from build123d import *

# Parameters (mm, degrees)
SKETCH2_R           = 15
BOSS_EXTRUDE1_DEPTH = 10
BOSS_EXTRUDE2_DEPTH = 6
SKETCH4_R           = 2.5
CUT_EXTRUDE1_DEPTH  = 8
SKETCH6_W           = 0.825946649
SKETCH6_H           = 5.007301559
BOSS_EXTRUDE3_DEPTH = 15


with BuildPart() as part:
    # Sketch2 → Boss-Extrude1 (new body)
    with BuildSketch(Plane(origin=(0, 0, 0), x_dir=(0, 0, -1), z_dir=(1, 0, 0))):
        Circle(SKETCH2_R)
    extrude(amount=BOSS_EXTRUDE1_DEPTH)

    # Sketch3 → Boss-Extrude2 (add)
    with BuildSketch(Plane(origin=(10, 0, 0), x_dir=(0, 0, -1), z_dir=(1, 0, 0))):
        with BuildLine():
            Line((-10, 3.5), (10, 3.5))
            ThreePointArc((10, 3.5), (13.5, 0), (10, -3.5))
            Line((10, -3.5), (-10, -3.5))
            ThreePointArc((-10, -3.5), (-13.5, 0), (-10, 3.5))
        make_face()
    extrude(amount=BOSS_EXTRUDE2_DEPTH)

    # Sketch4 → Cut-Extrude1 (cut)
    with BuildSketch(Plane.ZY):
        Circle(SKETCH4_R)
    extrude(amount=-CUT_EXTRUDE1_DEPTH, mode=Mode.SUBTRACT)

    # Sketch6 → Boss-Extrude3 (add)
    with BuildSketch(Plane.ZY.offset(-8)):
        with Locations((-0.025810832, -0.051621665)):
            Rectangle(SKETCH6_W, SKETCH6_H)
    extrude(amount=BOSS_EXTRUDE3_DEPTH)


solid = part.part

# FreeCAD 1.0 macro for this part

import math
import FreeCAD as App
import Part
import Sketcher
from FreeCAD import Vector


def add_polygon(sketch, points):
    """Adds a closed chain of lines whose ends are joined by coincident constraints."""
    first, n = sketch.GeometryCount, len(points)
    for a, b in zip(points, points[1:] + points[:1]):
        sketch.addGeometry(Part.LineSegment(App.Vector(*a, 0), App.Vector(*b, 0)), False)
    for i in range(n):
        sketch.addConstraint(Sketcher.Constraint("Coincident", first + i, 2, first + (i + 1) % n, 1))

doc = App.newDocument("Part")
body = doc.addObject("PartDesign::Body", "Body")

# Sketch on YZ plane
sketch1 = body.newObject("Sketcher::SketchObject", "Sketch")
sketch1.AttachmentSupport = (doc.getObject("YZ_Plane"), [""])
sketch1.MapMode = "FlatFace"
sketch1.addGeometry(Part.Circle(Vector(0, 0, 0), Vector(0, 0, 1), 15), False)
sketch1.addConstraint([
    Sketcher.Constraint("Coincident", 0, 3, -1, 1),
    Sketcher.Constraint("Diameter", 0, 30.0),
])
pad1 = body.newObject("PartDesign::Pad", "Pad")
pad1.Profile = sketch1
pad1.Length = 10

# Sketch on YZ plane
sketch2 = body.newObject("Sketcher::SketchObject", "Sketch001")
sketch2.AttachmentSupport = (doc.getObject("YZ_Plane"), [""])
sketch2.MapMode = "FlatFace"
sketch2.AttachmentOffset = App.Placement(Vector(0, 0, 10), App.Rotation())
sketch2.addGeometry([
    Part.LineSegment(Vector(3.5, -10, 0), Vector(3.5, 10, 0)),
    Part.ArcOfCircle(Part.Circle(Vector(0, 10, 0), Vector(0, 0, 1), 3.5), math.radians(0), math.radians(180)),
    Part.LineSegment(Vector(-3.5, 10, 0), Vector(-3.5, -10, 0)),
    Part.ArcOfCircle(Part.Circle(Vector(0, -10, 0), Vector(0, 0, 1), 3.5), math.radians(180), math.radians(360)),
], False)
sketch2.addConstraint([
    Sketcher.Constraint("Tangent", 0, 2, 1, 1),
    Sketcher.Constraint("Tangent", 1, 2, 2, 1),
    Sketcher.Constraint("Tangent", 2, 2, 3, 1),
    Sketcher.Constraint("Tangent", 3, 2, 0, 1),
    Sketcher.Constraint("Vertical", 0),
    Sketcher.Constraint("Vertical", 2),
    Sketcher.Constraint("Symmetric", 1, 3, 3, 3, -1, 1),
    Sketcher.Constraint("Radius", 1, 3.5),
    Sketcher.Constraint("DistanceY", 0, 1, 0, 2, 20.0),
])
pad2 = body.newObject("PartDesign::Pad", "Pad001")
pad2.Profile = sketch2
pad2.Length = 6

# Sketch on YZ plane
sketch3 = body.newObject("Sketcher::SketchObject", "Sketch002")
sketch3.AttachmentSupport = (doc.getObject("YZ_Plane"), [""])
sketch3.MapMode = "FlatFace"
sketch3.addGeometry(Part.Circle(Vector(0, 0, 0), Vector(0, 0, 1), 2.5), False)
sketch3.addConstraint([
    Sketcher.Constraint("Coincident", 0, 3, -1, 1),
    Sketcher.Constraint("Diameter", 0, 5.0),
])
pocket1 = body.newObject("PartDesign::Pocket", "Pocket")
pocket1.Profile = sketch3
pocket1.Length = 8
pocket1.Reversed = True

# Sketch on YZ plane
sketch4 = body.newObject("Sketcher::SketchObject", "Sketch003")
sketch4.AttachmentSupport = (doc.getObject("YZ_Plane"), [""])
sketch4.MapMode = "FlatFace"
sketch4.AttachmentOffset = App.Placement(Vector(0, 0, 8), App.Rotation())
add_polygon(sketch4, [(2.5, -0.4), (-2.6, -0.4), (-2.6, 0.4), (2.5, 0.4)])  # lines 0-3
sketch4.addConstraint([
    Sketcher.Constraint("Horizontal", 0),
    Sketcher.Constraint("Vertical", 1),
    Sketcher.Constraint("Horizontal", 2),
    Sketcher.Constraint("Vertical", 3),
    Sketcher.Constraint("DistanceX", 0, 2, 0, 1, 5.007302),
    Sketcher.Constraint("DistanceY", 1, 1, 1, 2, 0.825947),
    Sketcher.Constraint("DistanceX", -1, 1, 2, 2, 2.452029),
    Sketcher.Constraint("DistanceY", 0, 2, -1, 1, 0.438784),
])
pad3 = body.newObject("PartDesign::Pad", "Pad002")
pad3.Profile = sketch4
pad3.Length = 15
pad3.Reversed = True

doc.recompute()
